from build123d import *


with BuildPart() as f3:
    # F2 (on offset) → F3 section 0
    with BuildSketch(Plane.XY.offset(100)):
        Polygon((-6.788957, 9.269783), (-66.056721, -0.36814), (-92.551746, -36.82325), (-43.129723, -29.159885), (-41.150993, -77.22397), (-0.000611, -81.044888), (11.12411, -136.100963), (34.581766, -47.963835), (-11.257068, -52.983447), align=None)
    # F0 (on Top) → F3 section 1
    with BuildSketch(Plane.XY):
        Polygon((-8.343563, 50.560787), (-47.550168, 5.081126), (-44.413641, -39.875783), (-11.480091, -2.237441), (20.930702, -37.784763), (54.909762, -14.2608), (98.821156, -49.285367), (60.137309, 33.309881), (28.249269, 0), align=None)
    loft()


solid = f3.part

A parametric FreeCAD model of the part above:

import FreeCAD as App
import Part
import Sketcher

V = App.Vector
Q = App.Units.Quantity

doc = App.newDocument("Part")
body = doc.addObject("PartDesign::Body", "Body")

sketch1 = doc.addObject("Sketcher::SketchObject", "Sketch")
body.addObject(sketch1)
sketch1.AttachmentSupport = (doc.XY_Plane, [""])
sketch1.MapMode = "FlatFace"
sketch1.AttachmentOffset = App.Placement(V(0, 0, 100), App.Rotation())
sketch1.addGeometry([
    Part.LineSegment(V(-7, 9, 0), V(-66, 0, 0)),
    Part.LineSegment(V(-66, 0, 0), V(-93, -37, 0)),
    Part.LineSegment(V(-93, -37, 0), V(-43, -29, 0)),
    Part.LineSegment(V(-43, -29, 0), V(-41, -77, 0)),
    Part.LineSegment(V(-41, -77, 0), V(0, -81, 0)),
    Part.LineSegment(V(0, -81, 0), V(11, -136, 0)),
    Part.LineSegment(V(11, -136, 0), V(35, -48, 0)),
    Part.LineSegment(V(35, -48, 0), V(-11, -53, 0)),
    Part.LineSegment(V(-11, -53, 0), V(-7, 9, 0)),
], False)
sketch1.addConstraint([
    Sketcher.Constraint("Coincident", 0, 2, 1, 1),
    Sketcher.Constraint("Coincident", 1, 2, 2, 1),
    Sketcher.Constraint("Coincident", 2, 2, 3, 1),
    Sketcher.Constraint("Coincident", 3, 2, 4, 1),
    Sketcher.Constraint("Coincident", 4, 2, 5, 1),
    Sketcher.Constraint("Coincident", 5, 2, 6, 1),
    Sketcher.Constraint("Coincident", 6, 2, 7, 1),
    Sketcher.Constraint("Coincident", 7, 2, 8, 1),
    Sketcher.Constraint("Coincident", 8, 2, 0, 1),
    Sketcher.Constraint("Distance", 3, Q("48.104799 mm")),
    Sketcher.Constraint("Distance", 1, Q("45.066189 mm")),
    Sketcher.Constraint("Distance", 5, Q("56.168771 mm")),
    Sketcher.Constraint("Distance", 8, Q("62.413369 mm")),
    Sketcher.Constraint("DistanceX", 0, 2, -1, 1, Q("66.056721 mm")),
    Sketcher.Constraint("DistanceY", 0, 2, -1, 1, Q("0.36814 mm")),
    Sketcher.Constraint("DistanceY", 1, 2, -1, 1, Q("36.82325 mm")),
    Sketcher.Constraint("DistanceY", 3, 2, -1, 1, Q("77.22397 mm")),
    Sketcher.Constraint("DistanceX", 4, 2, -1, 1, Q("0.000611 mm")),
    Sketcher.Constraint("DistanceY", 4, 2, -1, 1, Q("81.044888 mm")),
    Sketcher.Constraint("DistanceX", -1, 1, 5, 2, Q("11.12411 mm")),
    Sketcher.Constraint("DistanceX", 2, 2, 3, 2, Q("1.97873 mm")),
    Sketcher.Constraint("DistanceX", 2, 2, 6, 2, Q("77.711489 mm")),
    Sketcher.Constraint("DistanceY", 6, 2, 2, 2, Q("18.80395 mm")),
    Sketcher.Constraint("DistanceY", 4, 2, 7, 2, Q("28.061441 mm")),
    Sketcher.Constraint("DistanceX", 7, 2, 8, 2, Q("4.468111 mm")),
    Sketcher.Constraint("Distance", 0, Q("60.046294 mm")),
    Sketcher.Constraint("Distance", 2, Q("50.012634 mm")),
])

sketch2 = doc.addObject("Sketcher::SketchObject", "Sketch001")
body.addObject(sketch2)
sketch2.AttachmentSupport = (doc.XY_Plane, [""])
sketch2.MapMode = "FlatFace"
sketch2.addGeometry([
    Part.LineSegment(V(-8, 51, 0), V(-48, 5, 0)),
    Part.LineSegment(V(-48, 5, 0), V(-44, -40, 0)),
    Part.LineSegment(V(-44, -40, 0), V(-11, -2, 0)),
    Part.LineSegment(V(-11, -2, 0), V(21, -38, 0)),
    Part.LineSegment(V(21, -38, 0), V(55, -14, 0)),
    Part.LineSegment(V(55, -14, 0), V(99, -49, 0)),
    Part.LineSegment(V(99, -49, 0), V(60, 33, 0)),
    Part.LineSegment(V(60, 33, 0), V(28, 0, 0)),
    Part.LineSegment(V(28, 0, 0), V(-8, 51, 0)),
], False)
sketch2.addConstraint([
    Sketcher.Constraint("Coincident", 0, 2, 1, 1),
    Sketcher.Constraint("Coincident", 1, 2, 2, 1),
    Sketcher.Constraint("Coincident", 2, 2, 3, 1),
    Sketcher.Constraint("Coincident", 3, 2, 4, 1),
    Sketcher.Constraint("Coincident", 4, 2, 5, 1),
    Sketcher.Constraint("Coincident", 5, 2, 6, 1),
    Sketcher.Constraint("Coincident", 6, 2, 7, 1),
    Sketcher.Constraint("Coincident", 7, 2, 8, 1),
    Sketcher.Constraint("Coincident", 8, 2, 0, 1),
    Sketcher.Constraint("PointOnObject", 7, 2, -1),
    Sketcher.Constraint("Distance", 3, Q("48.104798 mm")),
    Sketcher.Constraint("DistanceX", -1, 1, 3, 2, Q("20.930702 mm")),
    Sketcher.Constraint("DistanceY", 4, 2, -1, 1, Q("14.2608 mm")),
    Sketcher.Constraint("DistanceX", 2, 2, 6, 2, Q("71.6174 mm")),
    Sketcher.Constraint("Distance", 1, Q("45.06619 mm")),
    Sketcher.Constraint("Distance", 5, Q("56.168771 mm")),
    Sketcher.Constraint("Distance", 8, Q("62.413368 mm")),
    Sketcher.Constraint("DistanceX", 1, 2, -1, 1, Q("44.413641 mm")),
    Sketcher.Constraint("DistanceX", 2, 2, -1, 1, Q("11.480091 mm")),
    Sketcher.Constraint("DistanceY", 2, 2, -1, 1, Q("2.237441 mm")),
    Sketcher.Constraint("DistanceY", -1, 1, 6, 2, Q("33.309881 mm")),
    Sketcher.Constraint("DistanceX", -1, 1, 7, 2, Q("28.249269 mm")),
    Sketcher.Constraint("DistanceY", 1, 2, 0, 2, Q("44.956909 mm")),
    Sketcher.Constraint("DistanceY", 1, 2, 3, 2, Q("2.09102 mm")),
    Sketcher.Constraint("DistanceX", 3, 2, 4, 2, Q("33.97906 mm")),
    Sketcher.Constraint("DistanceY", 5, 2, 6, 2, Q("82.595248 mm")),
    Sketcher.Constraint("DistanceX", 2, 2, 8, 2, Q("3.136528 mm")),
])

additiveloft = doc.addObject("PartDesign::AdditiveLoft", "AdditiveLoft")
body.addObject(additiveloft)
additiveloft.Profile = sketch1
additiveloft.Sections = [sketch2]

doc.recompute()
